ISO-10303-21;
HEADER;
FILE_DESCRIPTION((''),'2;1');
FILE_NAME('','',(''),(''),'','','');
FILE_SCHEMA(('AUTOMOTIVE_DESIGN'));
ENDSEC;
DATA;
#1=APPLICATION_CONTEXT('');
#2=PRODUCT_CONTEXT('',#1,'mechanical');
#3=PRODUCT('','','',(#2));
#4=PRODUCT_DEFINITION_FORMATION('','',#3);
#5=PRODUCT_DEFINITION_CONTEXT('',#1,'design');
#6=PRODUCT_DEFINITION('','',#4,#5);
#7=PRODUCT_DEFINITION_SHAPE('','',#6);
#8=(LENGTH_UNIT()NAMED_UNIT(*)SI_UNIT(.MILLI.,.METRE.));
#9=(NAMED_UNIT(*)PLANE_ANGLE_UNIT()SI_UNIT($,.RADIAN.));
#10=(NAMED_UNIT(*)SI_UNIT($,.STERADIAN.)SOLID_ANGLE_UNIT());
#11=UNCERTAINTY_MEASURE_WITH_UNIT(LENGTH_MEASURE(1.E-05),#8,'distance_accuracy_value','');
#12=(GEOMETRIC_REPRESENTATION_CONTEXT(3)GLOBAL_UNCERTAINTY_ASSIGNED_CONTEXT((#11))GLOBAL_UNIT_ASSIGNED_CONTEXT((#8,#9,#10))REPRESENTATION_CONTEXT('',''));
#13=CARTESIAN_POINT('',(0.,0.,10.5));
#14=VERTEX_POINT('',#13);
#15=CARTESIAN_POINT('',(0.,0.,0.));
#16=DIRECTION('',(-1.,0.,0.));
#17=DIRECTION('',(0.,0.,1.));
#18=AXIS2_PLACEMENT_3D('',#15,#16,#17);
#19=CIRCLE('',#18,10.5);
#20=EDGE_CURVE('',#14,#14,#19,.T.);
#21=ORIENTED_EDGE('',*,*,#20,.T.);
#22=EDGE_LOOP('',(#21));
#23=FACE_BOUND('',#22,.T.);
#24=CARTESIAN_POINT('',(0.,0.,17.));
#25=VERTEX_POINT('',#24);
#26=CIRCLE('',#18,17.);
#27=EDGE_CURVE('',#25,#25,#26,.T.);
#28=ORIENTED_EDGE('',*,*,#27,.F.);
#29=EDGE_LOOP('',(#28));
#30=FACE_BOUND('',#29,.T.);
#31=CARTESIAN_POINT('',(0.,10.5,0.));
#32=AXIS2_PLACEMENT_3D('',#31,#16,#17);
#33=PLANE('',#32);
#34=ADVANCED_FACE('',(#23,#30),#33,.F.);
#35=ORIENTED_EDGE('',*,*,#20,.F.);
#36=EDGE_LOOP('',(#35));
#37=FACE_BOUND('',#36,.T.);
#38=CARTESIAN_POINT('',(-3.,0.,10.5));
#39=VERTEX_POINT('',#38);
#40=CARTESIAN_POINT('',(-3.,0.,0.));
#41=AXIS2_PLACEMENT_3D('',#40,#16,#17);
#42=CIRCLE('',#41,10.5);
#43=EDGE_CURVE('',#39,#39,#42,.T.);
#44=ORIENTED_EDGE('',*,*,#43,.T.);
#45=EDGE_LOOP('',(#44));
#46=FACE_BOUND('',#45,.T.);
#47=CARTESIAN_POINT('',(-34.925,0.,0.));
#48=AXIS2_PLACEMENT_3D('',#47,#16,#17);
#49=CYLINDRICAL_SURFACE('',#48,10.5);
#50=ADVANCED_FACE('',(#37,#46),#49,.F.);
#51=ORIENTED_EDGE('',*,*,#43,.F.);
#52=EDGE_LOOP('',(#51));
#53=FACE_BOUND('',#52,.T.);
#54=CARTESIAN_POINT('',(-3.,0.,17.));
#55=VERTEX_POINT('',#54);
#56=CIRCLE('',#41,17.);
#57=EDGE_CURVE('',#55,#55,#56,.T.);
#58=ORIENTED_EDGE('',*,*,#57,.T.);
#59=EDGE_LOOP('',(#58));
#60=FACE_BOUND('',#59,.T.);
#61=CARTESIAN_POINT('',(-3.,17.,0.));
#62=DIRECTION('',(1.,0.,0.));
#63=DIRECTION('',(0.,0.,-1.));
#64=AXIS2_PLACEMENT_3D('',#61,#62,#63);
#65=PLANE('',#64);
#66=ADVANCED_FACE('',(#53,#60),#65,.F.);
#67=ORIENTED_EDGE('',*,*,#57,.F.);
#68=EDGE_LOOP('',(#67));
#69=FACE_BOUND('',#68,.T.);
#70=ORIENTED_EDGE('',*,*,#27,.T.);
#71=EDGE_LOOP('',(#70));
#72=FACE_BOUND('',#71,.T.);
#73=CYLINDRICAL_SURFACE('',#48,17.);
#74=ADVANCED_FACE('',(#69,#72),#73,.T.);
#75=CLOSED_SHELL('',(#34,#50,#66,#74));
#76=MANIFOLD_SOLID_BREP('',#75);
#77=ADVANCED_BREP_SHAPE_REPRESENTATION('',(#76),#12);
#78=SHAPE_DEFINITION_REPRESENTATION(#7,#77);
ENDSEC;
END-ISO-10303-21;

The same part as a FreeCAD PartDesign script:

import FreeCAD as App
import Part
import Sketcher

doc = App.newDocument("Part")
body = doc.addObject("PartDesign::Body", "Body")

sketch1 = body.newObject("Sketcher::SketchObject", "Sketch")
sketch1.AttachmentSupport = (doc.getObject("XY_Plane"), [""])
sketch1.MapMode = "FlatFace"
sketch1.addGeometry([
    Part.LineSegment(App.Vector(-3, 17, 0), App.Vector(-3, 10.5, 0)),
    Part.LineSegment(App.Vector(-3, 10.5, 0), App.Vector(0, 10.5, 0)),
    Part.LineSegment(App.Vector(0, 10.5, 0), App.Vector(0, 17, 0)),
    Part.LineSegment(App.Vector(0, 17, 0), App.Vector(-3, 17, 0)),
], False)
sketch1.addConstraint([
    Sketcher.Constraint("Coincident", 0, 2, 1, 1),
    Sketcher.Constraint("Coincident", 1, 2, 2, 1),
    Sketcher.Constraint("Coincident", 2, 2, 3, 1),
    Sketcher.Constraint("Coincident", 3, 2, 0, 1),
    Sketcher.Constraint("Vertical", 0),
    Sketcher.Constraint("Horizontal", 1),
    Sketcher.Constraint("Vertical", 2),
    Sketcher.Constraint("Horizontal", 3),
    Sketcher.Constraint("PointOnObject", 1, 2, -2),
    Sketcher.Constraint("DistanceX", 1, 1, 1, 2, 3.0),
    Sketcher.Constraint("DistanceY", 0, 2, 0, 1, 6.5),
    Sketcher.Constraint("DistanceY", -1, 1, 2, 2, 17.0),
])
revolution = body.newObject("PartDesign::Revolution", "Revolution")
revolution.Profile = sketch1
revolution.ReferenceAxis = (sketch1, ["H_Axis"])
revolution.Angle = 360

doc.recompute()
